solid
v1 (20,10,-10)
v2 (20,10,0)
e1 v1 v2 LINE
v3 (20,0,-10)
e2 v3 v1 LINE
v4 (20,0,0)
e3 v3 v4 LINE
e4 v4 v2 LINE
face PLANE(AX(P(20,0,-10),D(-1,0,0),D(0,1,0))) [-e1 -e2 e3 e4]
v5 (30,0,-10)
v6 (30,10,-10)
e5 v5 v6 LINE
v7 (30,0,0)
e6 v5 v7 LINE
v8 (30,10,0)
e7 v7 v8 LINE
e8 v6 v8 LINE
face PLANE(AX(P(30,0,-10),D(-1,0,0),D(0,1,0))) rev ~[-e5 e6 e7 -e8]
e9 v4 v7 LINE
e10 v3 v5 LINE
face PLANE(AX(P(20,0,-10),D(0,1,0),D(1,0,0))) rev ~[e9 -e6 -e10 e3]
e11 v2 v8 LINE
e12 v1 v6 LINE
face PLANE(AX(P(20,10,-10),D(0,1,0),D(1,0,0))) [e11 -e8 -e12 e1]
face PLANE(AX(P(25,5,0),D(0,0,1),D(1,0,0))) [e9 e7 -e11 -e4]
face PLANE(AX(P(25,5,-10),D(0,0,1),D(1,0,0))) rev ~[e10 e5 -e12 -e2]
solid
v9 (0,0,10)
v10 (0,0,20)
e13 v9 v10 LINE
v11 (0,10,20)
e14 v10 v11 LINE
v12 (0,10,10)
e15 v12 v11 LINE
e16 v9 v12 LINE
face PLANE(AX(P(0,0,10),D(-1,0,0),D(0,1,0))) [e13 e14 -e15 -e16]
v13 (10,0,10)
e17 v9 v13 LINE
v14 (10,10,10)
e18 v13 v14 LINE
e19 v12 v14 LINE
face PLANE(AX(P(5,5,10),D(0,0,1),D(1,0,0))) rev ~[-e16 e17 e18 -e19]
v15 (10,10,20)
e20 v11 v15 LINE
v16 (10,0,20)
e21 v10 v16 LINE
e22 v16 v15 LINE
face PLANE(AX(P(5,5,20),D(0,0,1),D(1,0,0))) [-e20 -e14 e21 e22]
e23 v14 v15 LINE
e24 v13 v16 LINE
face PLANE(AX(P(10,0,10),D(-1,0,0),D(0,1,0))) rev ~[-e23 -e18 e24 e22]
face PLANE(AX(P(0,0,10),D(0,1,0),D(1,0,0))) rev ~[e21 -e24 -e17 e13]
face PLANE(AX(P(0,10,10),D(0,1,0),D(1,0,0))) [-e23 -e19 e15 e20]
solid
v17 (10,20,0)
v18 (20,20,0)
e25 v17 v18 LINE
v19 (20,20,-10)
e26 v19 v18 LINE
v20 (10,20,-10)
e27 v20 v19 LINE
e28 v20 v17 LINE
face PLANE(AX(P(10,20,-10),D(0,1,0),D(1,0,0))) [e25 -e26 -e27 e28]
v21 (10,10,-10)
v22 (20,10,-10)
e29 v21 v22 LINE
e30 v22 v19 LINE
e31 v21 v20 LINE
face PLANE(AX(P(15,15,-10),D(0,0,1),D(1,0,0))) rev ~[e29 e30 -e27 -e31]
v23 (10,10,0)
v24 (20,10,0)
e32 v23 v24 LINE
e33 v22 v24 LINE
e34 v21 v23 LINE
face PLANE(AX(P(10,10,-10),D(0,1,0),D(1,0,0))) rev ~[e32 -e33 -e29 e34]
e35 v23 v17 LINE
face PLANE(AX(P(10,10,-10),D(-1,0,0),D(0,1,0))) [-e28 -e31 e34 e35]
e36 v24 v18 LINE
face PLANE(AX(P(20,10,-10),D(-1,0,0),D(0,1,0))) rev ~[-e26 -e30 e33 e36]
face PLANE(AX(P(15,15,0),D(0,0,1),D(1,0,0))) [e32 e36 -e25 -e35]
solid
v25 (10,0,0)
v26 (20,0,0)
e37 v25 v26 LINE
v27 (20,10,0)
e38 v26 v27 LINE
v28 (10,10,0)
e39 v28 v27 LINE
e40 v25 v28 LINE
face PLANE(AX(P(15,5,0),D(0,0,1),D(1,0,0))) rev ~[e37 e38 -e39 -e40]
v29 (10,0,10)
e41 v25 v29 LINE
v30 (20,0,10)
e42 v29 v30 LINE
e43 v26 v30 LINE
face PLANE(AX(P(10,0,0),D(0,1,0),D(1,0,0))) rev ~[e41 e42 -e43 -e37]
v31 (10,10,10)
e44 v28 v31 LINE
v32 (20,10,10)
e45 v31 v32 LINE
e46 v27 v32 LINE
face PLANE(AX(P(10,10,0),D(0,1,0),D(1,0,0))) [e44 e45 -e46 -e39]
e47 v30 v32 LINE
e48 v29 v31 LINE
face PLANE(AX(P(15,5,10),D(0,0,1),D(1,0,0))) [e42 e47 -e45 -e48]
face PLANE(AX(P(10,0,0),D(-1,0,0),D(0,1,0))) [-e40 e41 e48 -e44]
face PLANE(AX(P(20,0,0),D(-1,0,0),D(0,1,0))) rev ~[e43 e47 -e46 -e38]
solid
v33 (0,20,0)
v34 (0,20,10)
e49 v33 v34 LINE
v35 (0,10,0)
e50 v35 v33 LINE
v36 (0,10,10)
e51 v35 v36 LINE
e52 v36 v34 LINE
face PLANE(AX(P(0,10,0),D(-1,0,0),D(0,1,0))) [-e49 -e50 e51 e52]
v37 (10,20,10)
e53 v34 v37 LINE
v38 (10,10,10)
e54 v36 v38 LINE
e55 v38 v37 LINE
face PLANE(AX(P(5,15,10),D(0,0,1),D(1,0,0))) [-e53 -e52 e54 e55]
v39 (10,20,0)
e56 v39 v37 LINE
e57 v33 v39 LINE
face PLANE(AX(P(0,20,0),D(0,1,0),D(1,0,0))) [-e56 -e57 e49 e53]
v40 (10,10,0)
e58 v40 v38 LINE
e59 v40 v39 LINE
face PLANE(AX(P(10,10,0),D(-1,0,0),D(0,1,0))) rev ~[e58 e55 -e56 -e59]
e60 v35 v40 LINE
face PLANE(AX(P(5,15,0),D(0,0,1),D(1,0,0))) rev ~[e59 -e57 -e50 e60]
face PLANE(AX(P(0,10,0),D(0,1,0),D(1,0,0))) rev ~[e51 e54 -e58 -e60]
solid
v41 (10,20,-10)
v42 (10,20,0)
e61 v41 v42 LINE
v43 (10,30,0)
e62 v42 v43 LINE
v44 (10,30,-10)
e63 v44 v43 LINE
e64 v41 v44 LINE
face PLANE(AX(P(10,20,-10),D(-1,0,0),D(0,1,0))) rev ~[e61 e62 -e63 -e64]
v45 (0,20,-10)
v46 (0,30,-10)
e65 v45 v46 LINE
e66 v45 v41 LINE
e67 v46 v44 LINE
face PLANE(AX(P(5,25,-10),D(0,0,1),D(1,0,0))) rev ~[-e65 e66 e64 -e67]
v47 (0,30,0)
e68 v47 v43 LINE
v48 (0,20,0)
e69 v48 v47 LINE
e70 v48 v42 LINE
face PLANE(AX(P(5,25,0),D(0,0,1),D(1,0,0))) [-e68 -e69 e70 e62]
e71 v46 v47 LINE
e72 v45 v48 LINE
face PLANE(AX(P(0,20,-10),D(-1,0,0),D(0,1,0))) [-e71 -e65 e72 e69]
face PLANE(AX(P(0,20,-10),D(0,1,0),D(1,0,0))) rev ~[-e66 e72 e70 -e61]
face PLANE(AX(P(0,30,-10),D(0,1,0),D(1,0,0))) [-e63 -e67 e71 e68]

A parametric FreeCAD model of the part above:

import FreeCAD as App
import Part
import Sketcher


def add_polygon(sketch, points):
    """Adds a closed chain of lines whose ends are joined by coincident constraints."""
    first, n = sketch.GeometryCount, len(points)
    for a, b in zip(points, points[1:] + points[:1]):
        sketch.addGeometry(Part.LineSegment(App.Vector(*a, 0), App.Vector(*b, 0)), False)
    for i in range(n):
        sketch.addConstraint(Sketcher.Constraint("Coincident", first + i, 2, first + (i + 1) % n, 1))

doc = App.newDocument("Part")
body = doc.addObject("PartDesign::Body", "Body")

# Sketch on XY plane
sketch1 = body.newObject("Sketcher::SketchObject", "Sketch")
sketch1.AttachmentSupport = (doc.getObject("XY_Plane"), [""])
sketch1.MapMode = "FlatFace"
sketch1.AttachmentOffset = App.Placement(App.Vector(0, 0, 10), App.Rotation())
add_polygon(sketch1, [(0, 10), (0, 0), (10, 0), (10, 10)])  # lines 0-3
sketch1.addConstraint(Sketcher.Constraint("Vertical", 0))
sketch1.addConstraint(Sketcher.Constraint("Horizontal", 1))
sketch1.addConstraint(Sketcher.Constraint("Vertical", 2))
sketch1.addConstraint(Sketcher.Constraint("Horizontal", 3))
sketch1.addConstraint(Sketcher.Constraint("Coincident", 0, 2, -1, 1))
sketch1.addConstraint(Sketcher.Constraint("Equal", 3, 0))
sketch1.addConstraint(Sketcher.Constraint("DistanceX", 1, 1, 1, 2, 10.0))
pad1 = body.newObject("PartDesign::Pad", "Pad")
pad1.Profile = sketch1
pad1.Length = 10
body2 = doc.addObject("PartDesign::Body", "Body001")

# Sketch on XY plane
sketch2 = body2.newObject("Sketcher::SketchObject", "Sketch001")
sketch2.AttachmentSupport = (doc.getObject("XY_Plane001"), [""])
sketch2.MapMode = "FlatFace"
add_polygon(sketch2, [(10, 10), (10, 0), (20, 0), (20, 10)])  # lines 0-3
sketch2.addConstraint(Sketcher.Constraint("Vertical", 0))
sketch2.addConstraint(Sketcher.Constraint("Horizontal", 1))
sketch2.addConstraint(Sketcher.Constraint("Vertical", 2))
sketch2.addConstraint(Sketcher.Constraint("Horizontal", 3))
sketch2.addConstraint(Sketcher.Constraint("PointOnObject", 0, 2, -1))
sketch2.addConstraint(Sketcher.Constraint("Equal", 3, 0))
sketch2.addConstraint(Sketcher.Constraint("DistanceX", 1, 1, 1, 2, 10.0))
sketch2.addConstraint(Sketcher.Constraint("DistanceX", -1, 1, 0, 2, 10.0))
pad2 = body2.newObject("PartDesign::Pad", "Pad001")
pad2.Profile = sketch2
pad2.Length = 10
body3 = doc.addObject("PartDesign::Body", "Body002")

# Sketch on XY plane
sketch3 = body3.newObject("Sketcher::SketchObject", "Sketch002")
sketch3.AttachmentSupport = (doc.getObject("XY_Plane002"), [""])
sketch3.MapMode = "FlatFace"
add_polygon(sketch3, [(0, 20), (0, 10), (10, 10), (10, 20)])  # lines 0-3
sketch3.addConstraint(Sketcher.Constraint("Vertical", 0))
sketch3.addConstraint(Sketcher.Constraint("Horizontal", 1))
sketch3.addConstraint(Sketcher.Constraint("Vertical", 2))
sketch3.addConstraint(Sketcher.Constraint("Horizontal", 3))
sketch3.addConstraint(Sketcher.Constraint("PointOnObject", 0, 2, -2))
sketch3.addConstraint(Sketcher.Constraint("Equal", 3, 0))
sketch3.addConstraint(Sketcher.Constraint("DistanceX", 1, 1, 1, 2, 10.0))
sketch3.addConstraint(Sketcher.Constraint("DistanceY", -1, 1, 0, 2, 10.0))
pad3 = body3.newObject("PartDesign::Pad", "Pad002")
pad3.Profile = sketch3
pad3.Length = 10
body4 = doc.addObject("PartDesign::Body", "Body003")

# Sketch on XY plane
sketch4 = body4.newObject("Sketcher::SketchObject", "Sketch003")
sketch4.AttachmentSupport = (doc.getObject("XY_Plane003"), [""])
sketch4.MapMode = "FlatFace"
sketch4.AttachmentOffset = App.Placement(App.Vector(0, 0, -10), App.Rotation())
add_polygon(sketch4, [(20, 10), (20, 0), (30, 0), (30, 10)])  # lines 0-3
sketch4.addConstraint(Sketcher.Constraint("Vertical", 0))
sketch4.addConstraint(Sketcher.Constraint("Horizontal", 1))
sketch4.addConstraint(Sketcher.Constraint("Vertical", 2))
sketch4.addConstraint(Sketcher.Constraint("Horizontal", 3))
sketch4.addConstraint(Sketcher.Constraint("PointOnObject", 0, 2, -1))
sketch4.addConstraint(Sketcher.Constraint("Equal", 3, 0))
sketch4.addConstraint(Sketcher.Constraint("DistanceX", 1, 1, 1, 2, 10.0))
sketch4.addConstraint(Sketcher.Constraint("DistanceX", -1, 1, 0, 2, 20.0))
pad4 = body4.newObject("PartDesign::Pad", "Pad003")
pad4.Profile = sketch4
pad4.Length = 10
body5 = doc.addObject("PartDesign::Body", "Body004")

# Sketch on XY plane
sketch5 = body5.newObject("Sketcher::SketchObject", "Sketch004")
sketch5.AttachmentSupport = (doc.getObject("XY_Plane004"), [""])
sketch5.MapMode = "FlatFace"
sketch5.AttachmentOffset = App.Placement(App.Vector(0, 0, -10), App.Rotation())
add_polygon(sketch5, [(10, 20), (10, 10), (20, 10), (20, 20)])  # lines 0-3
sketch5.addConstraint(Sketcher.Constraint("Vertical", 0))
sketch5.addConstraint(Sketcher.Constraint("Horizontal", 1))
sketch5.addConstraint(Sketcher.Constraint("Vertical", 2))
sketch5.addConstraint(Sketcher.Constraint("Horizontal", 3))
sketch5.addConstraint(Sketcher.Constraint("Equal", 3, 0))
sketch5.addConstraint(Sketcher.Constraint("DistanceX", 1, 1, 1, 2, 10.0))
sketch5.addConstraint(Sketcher.Constraint("DistanceX", -1, 1, 0, 2, 10.0))
sketch5.addConstraint(Sketcher.Constraint("DistanceY", -1, 1, 0, 2, 10.0))
pad5 = body5.newObject("PartDesign::Pad", "Pad004")
pad5.Profile = sketch5
pad5.Length = 10
body6 = doc.addObject("PartDesign::Body", "Body005")

# Sketch on XY plane
sketch6 = body6.newObject("Sketcher::SketchObject", "Sketch005")
sketch6.AttachmentSupport = (doc.getObject("XY_Plane005"), [""])
sketch6.MapMode = "FlatFace"
sketch6.AttachmentOffset = App.Placement(App.Vector(0, 0, -10), App.Rotation())
add_polygon(sketch6, [(0, 30), (0, 20), (10, 20), (10, 30)])  # lines 0-3
sketch6.addConstraint(Sketcher.Constraint("Vertical", 0))
sketch6.addConstraint(Sketcher.Constraint("Horizontal", 1))
sketch6.addConstraint(Sketcher.Constraint("Vertical", 2))
sketch6.addConstraint(Sketcher.Constraint("Horizontal", 3))
sketch6.addConstraint(Sketcher.Constraint("PointOnObject", 0, 2, -2))
sketch6.addConstraint(Sketcher.Constraint("Equal", 3, 0))
sketch6.addConstraint(Sketcher.Constraint("DistanceX", 1, 1, 1, 2, 10.0))
sketch6.addConstraint(Sketcher.Constraint("DistanceY", -1, 1, 0, 2, 20.0))
pad6 = body6.newObject("PartDesign::Pad", "Pad005")
pad6.Profile = sketch6
pad6.Length = 10

doc.recompute()
